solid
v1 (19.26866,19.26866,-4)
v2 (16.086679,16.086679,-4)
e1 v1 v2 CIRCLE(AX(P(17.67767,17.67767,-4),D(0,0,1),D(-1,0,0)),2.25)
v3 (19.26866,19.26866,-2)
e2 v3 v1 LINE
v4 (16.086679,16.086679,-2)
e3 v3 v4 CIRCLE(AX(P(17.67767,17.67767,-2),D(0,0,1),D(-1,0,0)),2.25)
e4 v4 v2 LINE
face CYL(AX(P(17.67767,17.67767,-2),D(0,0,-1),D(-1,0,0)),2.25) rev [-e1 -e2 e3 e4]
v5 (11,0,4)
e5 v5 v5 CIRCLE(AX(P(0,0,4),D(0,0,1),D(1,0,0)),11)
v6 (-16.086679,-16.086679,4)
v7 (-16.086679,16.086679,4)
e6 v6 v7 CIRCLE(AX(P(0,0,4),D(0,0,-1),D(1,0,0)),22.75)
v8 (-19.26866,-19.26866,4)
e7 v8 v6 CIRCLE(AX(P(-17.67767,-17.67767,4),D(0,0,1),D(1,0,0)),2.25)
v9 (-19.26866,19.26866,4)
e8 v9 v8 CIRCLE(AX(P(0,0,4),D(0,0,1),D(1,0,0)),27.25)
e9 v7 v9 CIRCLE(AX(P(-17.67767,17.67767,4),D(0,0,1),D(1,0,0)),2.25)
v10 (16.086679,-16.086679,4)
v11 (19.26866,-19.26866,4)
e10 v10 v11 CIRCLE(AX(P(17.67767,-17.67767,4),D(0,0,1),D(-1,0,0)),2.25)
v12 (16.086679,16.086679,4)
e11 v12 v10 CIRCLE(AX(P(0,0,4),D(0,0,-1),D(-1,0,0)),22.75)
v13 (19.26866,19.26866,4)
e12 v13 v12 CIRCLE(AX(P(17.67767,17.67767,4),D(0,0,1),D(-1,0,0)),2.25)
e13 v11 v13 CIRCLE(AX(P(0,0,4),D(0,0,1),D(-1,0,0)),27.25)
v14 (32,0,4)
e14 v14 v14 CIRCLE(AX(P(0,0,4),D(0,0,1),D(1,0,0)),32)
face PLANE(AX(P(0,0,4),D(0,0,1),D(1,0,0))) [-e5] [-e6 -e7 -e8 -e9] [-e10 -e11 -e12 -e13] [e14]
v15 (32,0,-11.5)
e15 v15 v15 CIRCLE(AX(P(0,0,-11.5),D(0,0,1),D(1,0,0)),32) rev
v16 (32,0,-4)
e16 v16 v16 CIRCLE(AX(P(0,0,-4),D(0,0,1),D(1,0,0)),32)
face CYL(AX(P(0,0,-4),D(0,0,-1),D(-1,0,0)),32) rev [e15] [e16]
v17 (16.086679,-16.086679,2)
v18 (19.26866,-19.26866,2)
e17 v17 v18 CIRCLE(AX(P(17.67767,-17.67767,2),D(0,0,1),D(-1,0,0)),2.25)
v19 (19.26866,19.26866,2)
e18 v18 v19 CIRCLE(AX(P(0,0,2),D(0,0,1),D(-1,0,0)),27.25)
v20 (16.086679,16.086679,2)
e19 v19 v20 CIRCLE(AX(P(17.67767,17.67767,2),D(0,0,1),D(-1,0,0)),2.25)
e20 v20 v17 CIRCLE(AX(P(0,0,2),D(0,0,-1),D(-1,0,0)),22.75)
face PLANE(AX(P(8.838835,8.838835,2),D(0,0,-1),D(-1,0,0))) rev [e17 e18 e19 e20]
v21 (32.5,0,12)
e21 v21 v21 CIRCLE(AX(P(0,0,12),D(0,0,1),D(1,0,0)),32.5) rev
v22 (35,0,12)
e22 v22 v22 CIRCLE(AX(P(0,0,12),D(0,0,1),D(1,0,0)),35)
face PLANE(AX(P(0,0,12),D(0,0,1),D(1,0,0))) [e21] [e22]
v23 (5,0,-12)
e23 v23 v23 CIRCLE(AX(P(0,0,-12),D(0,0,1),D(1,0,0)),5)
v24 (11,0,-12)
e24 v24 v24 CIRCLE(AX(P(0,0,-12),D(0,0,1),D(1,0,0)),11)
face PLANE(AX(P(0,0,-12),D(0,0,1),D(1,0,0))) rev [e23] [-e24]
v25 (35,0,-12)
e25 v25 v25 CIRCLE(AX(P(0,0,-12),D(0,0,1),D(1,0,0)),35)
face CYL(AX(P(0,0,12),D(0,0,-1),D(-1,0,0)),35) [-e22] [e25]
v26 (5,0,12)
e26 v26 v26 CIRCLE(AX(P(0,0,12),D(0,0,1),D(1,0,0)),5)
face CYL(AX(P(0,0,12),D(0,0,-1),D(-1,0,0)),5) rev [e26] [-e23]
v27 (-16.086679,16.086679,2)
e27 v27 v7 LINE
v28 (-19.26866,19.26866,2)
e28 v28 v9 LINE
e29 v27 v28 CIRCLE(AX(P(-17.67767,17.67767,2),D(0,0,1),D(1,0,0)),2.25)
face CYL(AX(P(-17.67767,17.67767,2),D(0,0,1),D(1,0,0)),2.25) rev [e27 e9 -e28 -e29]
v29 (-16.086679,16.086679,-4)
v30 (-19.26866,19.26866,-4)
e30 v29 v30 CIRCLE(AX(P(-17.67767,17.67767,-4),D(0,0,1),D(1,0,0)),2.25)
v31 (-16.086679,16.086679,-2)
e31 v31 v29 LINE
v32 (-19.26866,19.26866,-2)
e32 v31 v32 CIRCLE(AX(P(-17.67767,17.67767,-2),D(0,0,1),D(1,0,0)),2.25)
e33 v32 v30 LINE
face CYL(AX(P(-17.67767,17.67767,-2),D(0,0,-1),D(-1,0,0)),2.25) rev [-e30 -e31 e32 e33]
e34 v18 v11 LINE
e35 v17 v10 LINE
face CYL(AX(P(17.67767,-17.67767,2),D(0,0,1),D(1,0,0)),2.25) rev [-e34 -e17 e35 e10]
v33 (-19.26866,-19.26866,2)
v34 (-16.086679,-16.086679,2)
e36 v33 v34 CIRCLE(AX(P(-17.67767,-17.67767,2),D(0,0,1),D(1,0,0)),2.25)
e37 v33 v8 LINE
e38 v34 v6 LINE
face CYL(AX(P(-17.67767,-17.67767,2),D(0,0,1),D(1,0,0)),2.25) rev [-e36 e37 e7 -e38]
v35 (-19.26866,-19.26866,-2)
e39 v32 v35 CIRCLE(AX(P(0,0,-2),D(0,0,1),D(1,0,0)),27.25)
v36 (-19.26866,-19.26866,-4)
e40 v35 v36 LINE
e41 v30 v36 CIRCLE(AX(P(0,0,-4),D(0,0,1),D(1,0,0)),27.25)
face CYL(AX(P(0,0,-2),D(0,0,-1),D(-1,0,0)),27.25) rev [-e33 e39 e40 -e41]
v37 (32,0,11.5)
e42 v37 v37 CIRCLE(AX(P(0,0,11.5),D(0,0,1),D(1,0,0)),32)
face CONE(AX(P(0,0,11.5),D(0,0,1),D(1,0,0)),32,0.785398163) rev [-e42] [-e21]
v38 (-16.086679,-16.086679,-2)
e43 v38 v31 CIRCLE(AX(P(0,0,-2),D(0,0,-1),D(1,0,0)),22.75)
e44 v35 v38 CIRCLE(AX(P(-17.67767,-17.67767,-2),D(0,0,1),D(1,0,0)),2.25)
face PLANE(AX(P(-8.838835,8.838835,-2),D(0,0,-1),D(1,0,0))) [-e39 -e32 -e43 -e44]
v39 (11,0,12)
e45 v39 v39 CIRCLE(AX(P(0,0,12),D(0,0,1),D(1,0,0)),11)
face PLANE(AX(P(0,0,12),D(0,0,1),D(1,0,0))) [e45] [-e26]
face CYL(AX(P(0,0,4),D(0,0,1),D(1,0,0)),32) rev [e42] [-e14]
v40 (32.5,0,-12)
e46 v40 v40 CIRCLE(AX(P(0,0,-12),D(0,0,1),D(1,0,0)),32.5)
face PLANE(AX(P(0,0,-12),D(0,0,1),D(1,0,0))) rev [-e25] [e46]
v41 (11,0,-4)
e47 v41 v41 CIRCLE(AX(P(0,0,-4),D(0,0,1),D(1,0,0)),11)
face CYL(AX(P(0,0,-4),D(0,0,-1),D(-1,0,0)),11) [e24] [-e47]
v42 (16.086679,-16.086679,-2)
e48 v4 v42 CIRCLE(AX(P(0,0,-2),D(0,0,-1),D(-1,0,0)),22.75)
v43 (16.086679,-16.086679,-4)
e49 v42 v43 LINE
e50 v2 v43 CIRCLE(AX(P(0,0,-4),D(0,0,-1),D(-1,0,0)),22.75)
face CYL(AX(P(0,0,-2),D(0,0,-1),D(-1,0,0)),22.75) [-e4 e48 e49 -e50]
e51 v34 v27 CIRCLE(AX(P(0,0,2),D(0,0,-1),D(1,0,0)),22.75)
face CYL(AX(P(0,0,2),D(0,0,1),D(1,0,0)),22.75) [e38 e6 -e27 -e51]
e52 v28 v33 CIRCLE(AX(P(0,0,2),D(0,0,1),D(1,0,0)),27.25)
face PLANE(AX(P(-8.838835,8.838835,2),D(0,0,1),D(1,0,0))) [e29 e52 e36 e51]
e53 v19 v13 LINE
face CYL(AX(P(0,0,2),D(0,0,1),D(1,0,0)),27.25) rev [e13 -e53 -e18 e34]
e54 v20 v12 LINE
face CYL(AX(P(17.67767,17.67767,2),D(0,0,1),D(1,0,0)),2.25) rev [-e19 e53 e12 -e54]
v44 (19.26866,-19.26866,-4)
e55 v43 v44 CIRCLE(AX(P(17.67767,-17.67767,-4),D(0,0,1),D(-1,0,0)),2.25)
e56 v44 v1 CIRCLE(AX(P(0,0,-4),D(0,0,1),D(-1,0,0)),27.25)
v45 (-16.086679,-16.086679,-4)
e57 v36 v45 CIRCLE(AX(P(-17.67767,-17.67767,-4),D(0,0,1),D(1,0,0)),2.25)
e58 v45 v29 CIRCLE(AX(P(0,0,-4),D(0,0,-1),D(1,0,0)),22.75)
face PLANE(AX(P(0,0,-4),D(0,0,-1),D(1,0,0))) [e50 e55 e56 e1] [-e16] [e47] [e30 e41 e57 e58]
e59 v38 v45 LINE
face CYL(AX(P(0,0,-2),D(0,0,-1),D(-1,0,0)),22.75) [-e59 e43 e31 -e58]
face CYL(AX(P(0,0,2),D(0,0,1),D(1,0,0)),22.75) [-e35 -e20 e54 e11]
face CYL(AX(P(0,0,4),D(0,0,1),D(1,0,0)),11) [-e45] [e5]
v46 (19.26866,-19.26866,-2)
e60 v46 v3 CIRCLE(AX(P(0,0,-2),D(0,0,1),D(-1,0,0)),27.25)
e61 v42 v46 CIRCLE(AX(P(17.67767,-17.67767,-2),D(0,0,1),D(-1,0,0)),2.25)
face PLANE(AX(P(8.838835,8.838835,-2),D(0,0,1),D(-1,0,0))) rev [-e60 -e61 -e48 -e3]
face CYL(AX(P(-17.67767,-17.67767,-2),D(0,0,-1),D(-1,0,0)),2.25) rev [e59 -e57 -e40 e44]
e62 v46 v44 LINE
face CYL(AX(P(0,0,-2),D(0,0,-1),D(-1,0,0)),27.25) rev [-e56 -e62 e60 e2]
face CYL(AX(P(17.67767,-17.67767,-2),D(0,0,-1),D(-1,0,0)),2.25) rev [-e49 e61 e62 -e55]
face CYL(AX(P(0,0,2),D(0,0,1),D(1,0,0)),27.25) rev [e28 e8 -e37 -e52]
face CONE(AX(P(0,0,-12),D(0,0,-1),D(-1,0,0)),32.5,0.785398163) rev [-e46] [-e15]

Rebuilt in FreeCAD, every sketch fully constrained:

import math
import FreeCAD as App
import Part
import Sketcher
from FreeCAD import Vector
Q = App.Units.Quantity


def edges_at(feature, points):
    """Names of the edges that pass closest to the given points."""
    edges = feature.Shape.Edges
    near = lambda p: min(range(len(edges)), key=lambda i: edges[i].distToShape(Part.Vertex(*p))[0])
    return sorted({f"Edge{near(p) + 1}" for p in points})

doc = App.newDocument("Part")
body = doc.addObject("PartDesign::Body", "Body")

# Sketch on XY plane
sketch1 = body.newObject("Sketcher::SketchObject", "Sketch")
sketch1.AttachmentSupport = (doc.getObject("XY_Plane"), [""])
sketch1.MapMode = "FlatFace"
sketch1.addGeometry(Part.Circle(Vector(0, 0, 0), Vector(0, 0, 1), 35), False)
sketch1.addConstraint(Sketcher.Constraint("Coincident", 0, 3, -1, 1))
sketch1.addConstraint(Sketcher.Constraint("Diameter", 0, Q("70 mm")))
pad1 = body.newObject("PartDesign::Pad", "Pad")
pad1.Profile = sketch1
pad1.Length = 24
pad1.Midplane = True

# Sketch on XY plane
sketch2 = body.newObject("Sketcher::SketchObject", "Sketch001")
sketch2.AttachmentSupport = (doc.getObject("XY_Plane"), [""])
sketch2.MapMode = "FlatFace"
sketch2.addGeometry(Part.Circle(Vector(0, 0, 0), Vector(0, 0, 1), 5), False)
sketch2.addConstraint(Sketcher.Constraint("Coincident", 0, 3, -1, 1))
sketch2.addConstraint(Sketcher.Constraint("Diameter", 0, Q("10 mm")))
pocket1 = body.newObject("PartDesign::Pocket", "Pocket")
pocket1.Profile = sketch2
pocket1.Type = "ThroughAll"
pocket1.Midplane = True

# Sketch on XY plane
sketch3 = body.newObject("Sketcher::SketchObject", "Sketch002")
sketch3.AttachmentSupport = (doc.getObject("XY_Plane"), [""])
sketch3.MapMode = "FlatFace"
sketch3.AttachmentOffset = App.Placement(Vector(0, 0, 12), App.Rotation())
sketch3.addGeometry(Part.Circle(Vector(0, 0, 0), Vector(0, 0, 1), 32), False)
sketch3.addGeometry(Part.Circle(Vector(0, 0, 0), Vector(0, 0, 1), 11), False)
sketch3.addConstraint(Sketcher.Constraint("Coincident", 0, 3, -1, 1))
sketch3.addConstraint(Sketcher.Constraint("Coincident", 1, 3, -1, 1))
sketch3.addConstraint(Sketcher.Constraint("Diameter", 0, Q("64 mm")))
sketch3.addConstraint(Sketcher.Constraint("Diameter", 1, Q("22 mm")))
pocket2 = body.newObject("PartDesign::Pocket", "Pocket001")
pocket2.Profile = sketch3
pocket2.Length = 8

# Sketch on XY plane
sketch4 = body.newObject("Sketcher::SketchObject", "Sketch003")
sketch4.AttachmentSupport = (doc.getObject("XY_Plane"), [""])
sketch4.MapMode = "FlatFace"
sketch4.AttachmentOffset = App.Placement(Vector(0, 0, 4), App.Rotation())
sketch4.addGeometry(Part.ArcOfCircle(Part.Circle(Vector(0, 0, 0), Vector(0, 0, 1), 27.2), math.radians(135), math.radians(225)), False)
sketch4.addGeometry(Part.ArcOfCircle(Part.Circle(Vector(-17.7, -17.7, 0), Vector(0, 0, 1), 2.2), math.radians(-135), math.radians(45)), False)
sketch4.addGeometry(Part.ArcOfCircle(Part.Circle(Vector(0, 0, 0), Vector(0, 0, 1), 22.8), math.radians(135), math.radians(225)), False)
sketch4.addGeometry(Part.ArcOfCircle(Part.Circle(Vector(-17.7, 17.7, 0), Vector(0, 0, 1), 2.2), math.radians(-45), math.radians(135)), False)
sketch4.addGeometry(Part.ArcOfCircle(Part.Circle(Vector(0, 0, 0), Vector(0, 0, 1), 27.2), math.radians(-45), math.radians(45)), False)
sketch4.addGeometry(Part.ArcOfCircle(Part.Circle(Vector(17.7, 17.7, 0), Vector(0, 0, 1), 2.2), math.radians(45), math.radians(225)), False)
sketch4.addGeometry(Part.ArcOfCircle(Part.Circle(Vector(0, 0, 0), Vector(0, 0, 1), 22.8), math.radians(-45), math.radians(45)), False)
sketch4.addGeometry(Part.ArcOfCircle(Part.Circle(Vector(17.7, -17.7, 0), Vector(0, 0, 1), 2.2), math.radians(135), math.radians(315)), False)
sketch4.addConstraint(Sketcher.Constraint("Tangent", 0, 2, 1, 1))
sketch4.addConstraint(Sketcher.Constraint("Tangent", 1, 2, 2, 2))
sketch4.addConstraint(Sketcher.Constraint("Tangent", 2, 1, 3, 1))
sketch4.addConstraint(Sketcher.Constraint("Tangent", 3, 2, 0, 1))
sketch4.addConstraint(Sketcher.Constraint("Tangent", 4, 2, 5, 1))
sketch4.addConstraint(Sketcher.Constraint("Tangent", 5, 2, 6, 2))
sketch4.addConstraint(Sketcher.Constraint("Tangent", 6, 1, 7, 1))
sketch4.addConstraint(Sketcher.Constraint("Tangent", 7, 2, 4, 1))
sketch4.addConstraint(Sketcher.Constraint("Coincident", 0, 3, -1, 1))
sketch4.addConstraint(Sketcher.Constraint("Coincident", 2, 3, -1, 1))
sketch4.addConstraint(Sketcher.Constraint("Coincident", 4, 3, -1, 1))
sketch4.addConstraint(Sketcher.Constraint("Coincident", 6, 3, -1, 1))
sketch4.addConstraint(Sketcher.Constraint("Equal", 0, 4))
sketch4.addConstraint(Sketcher.Constraint("Equal", 3, 5))
sketch4.addConstraint(Sketcher.Constraint("Horizontal", 3, 3, 5, 3))
sketch4.addConstraint(Sketcher.Constraint("Horizontal", 1, 3, 7, 3))
sketch4.addConstraint(Sketcher.Constraint("Vertical", 1, 3, 3, 3))
sketch4.addConstraint(Sketcher.Constraint("Radius", 0, Q("27.25 mm")))
sketch4.addConstraint(Sketcher.Constraint("Radius", 1, Q("2.25 mm")))
sketch4.addConstraint(Sketcher.Constraint("DistanceX", 1, 3, -1, 1, Q("17.67767 mm")))
pocket3 = body.newObject("PartDesign::Pocket", "Pocket002")
pocket3.Profile = sketch4
pocket3.Length = 2
doc.recompute()

mirrored = body.newObject("PartDesign::Mirrored", "Mirrored")
mirrored.Originals = [pocket2, pocket3]
mirrored.MirrorPlane = (doc.getObject("XY_Plane"), [""])
body.Tip = mirrored
doc.recompute()

chamfer = body.newObject("PartDesign::Chamfer", "Chamfer")
chamfer.Base = (mirrored, edges_at(mirrored, [(-32, 0, 12), (-32, 0, -12)]))
chamfer.Size = 0.5

doc.recompute()
